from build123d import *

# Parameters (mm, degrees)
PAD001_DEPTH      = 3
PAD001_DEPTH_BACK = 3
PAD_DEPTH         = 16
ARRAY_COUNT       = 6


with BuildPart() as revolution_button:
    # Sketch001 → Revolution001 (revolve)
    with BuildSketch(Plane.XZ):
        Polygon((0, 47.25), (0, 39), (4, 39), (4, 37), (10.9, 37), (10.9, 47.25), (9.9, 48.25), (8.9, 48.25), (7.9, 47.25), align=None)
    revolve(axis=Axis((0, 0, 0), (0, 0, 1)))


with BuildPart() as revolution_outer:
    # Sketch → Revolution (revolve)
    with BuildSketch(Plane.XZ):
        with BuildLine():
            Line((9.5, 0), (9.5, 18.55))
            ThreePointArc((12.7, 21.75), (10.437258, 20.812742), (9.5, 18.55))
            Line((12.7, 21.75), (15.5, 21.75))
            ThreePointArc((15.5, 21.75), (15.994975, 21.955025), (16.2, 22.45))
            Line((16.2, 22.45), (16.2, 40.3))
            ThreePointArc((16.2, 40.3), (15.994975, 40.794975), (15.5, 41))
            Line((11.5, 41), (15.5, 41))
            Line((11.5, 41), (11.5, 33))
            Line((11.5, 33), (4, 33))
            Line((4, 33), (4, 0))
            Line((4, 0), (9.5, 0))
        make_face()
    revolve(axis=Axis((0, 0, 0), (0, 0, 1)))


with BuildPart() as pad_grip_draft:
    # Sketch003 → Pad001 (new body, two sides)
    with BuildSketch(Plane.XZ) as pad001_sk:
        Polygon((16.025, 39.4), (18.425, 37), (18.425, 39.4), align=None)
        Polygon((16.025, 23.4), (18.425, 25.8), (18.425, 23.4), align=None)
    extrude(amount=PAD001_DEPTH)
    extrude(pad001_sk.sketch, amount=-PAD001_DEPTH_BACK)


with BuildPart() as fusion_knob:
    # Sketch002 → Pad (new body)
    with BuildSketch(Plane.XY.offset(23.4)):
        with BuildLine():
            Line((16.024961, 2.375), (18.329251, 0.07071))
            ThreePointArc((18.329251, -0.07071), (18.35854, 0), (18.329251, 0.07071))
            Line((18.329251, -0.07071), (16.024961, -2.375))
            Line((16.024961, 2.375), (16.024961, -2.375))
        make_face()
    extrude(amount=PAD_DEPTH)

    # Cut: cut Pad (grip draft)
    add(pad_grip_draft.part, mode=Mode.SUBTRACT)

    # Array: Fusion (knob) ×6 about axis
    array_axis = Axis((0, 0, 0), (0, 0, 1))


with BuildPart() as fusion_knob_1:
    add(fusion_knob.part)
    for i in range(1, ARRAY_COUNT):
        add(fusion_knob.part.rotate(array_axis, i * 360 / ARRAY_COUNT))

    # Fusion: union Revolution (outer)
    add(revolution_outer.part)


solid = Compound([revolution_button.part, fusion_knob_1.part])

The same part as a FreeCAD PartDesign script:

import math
import FreeCAD as App
import Part
import Sketcher

V = App.Vector
Q = App.Units.Quantity

doc = App.newDocument("Part")
params = doc.addObject("Spreadsheet::Sheet", "Params")
for row, (alias, value) in enumerate([
    ("sketch1_width", "4 mm"),
    ("sketch1_width2", "1 mm"),
    ("sketch1_height", "2 mm"),
    ("sketch1_width3", "6.9 mm"),
    ("sketch1_width4", "7.9 mm"),
    ("revolution_angle", "360 deg"),
    ("sketch2_radius", "3.199999 mm"),
    ("sketch2_radius2", "0.699999 mm"),
    ("sketch2_width", "4 mm"),
    ("sketch2_height", "8 mm"),
    ("sketch2_height2", "33 mm"),
    ("revolution2_angle", "360 deg"),
    ("sketch3_width", "2.4 mm"),
    ("pad1_length", "3 mm"),
    ("pad1_length2", "3 mm"),
    ("sketch4_radius", "0.099999 mm"),
    ("sketch4_height", "4.75 mm"),
    ("pad2_length", "16 mm"),
], start=1):
    params.set(f"A{row}", alias)
    params.set(f"B{row}", "=" + value)
    params.setAlias(f"B{row}", alias)

body = doc.addObject("PartDesign::Body", "Body")

sketch1 = body.newObject("Sketcher::SketchObject", "Sketch")
sketch1.AttachmentSupport = (doc.getObject("XZ_Plane"), [""])
sketch1.MapMode = "FlatFace"
sketch1.addGeometry([
    Part.LineSegment(V(0, 47.2, 0), V(0, 39, 0)),
    Part.LineSegment(V(0, 39, 0), V(4, 39, 0)),
    Part.LineSegment(V(4, 39, 0), V(4, 37, 0)),
    Part.LineSegment(V(4, 37, 0), V(10.9, 37, 0)),
    Part.LineSegment(V(10.9, 37, 0), V(10.9, 47.2, 0)),
    Part.LineSegment(V(10.9, 47.2, 0), V(9.9, 48.2, 0)),
    Part.LineSegment(V(9.9, 48.2, 0), V(8.9, 48.2, 0)),
    Part.LineSegment(V(8.9, 48.2, 0), V(7.9, 47.2, 0)),
    Part.LineSegment(V(7.9, 47.2, 0), V(0, 47.2, 0)),
], False)
sketch1.addConstraint([
    Sketcher.Constraint("Coincident", 0, 2, 1, 1),
    Sketcher.Constraint("Coincident", 1, 2, 2, 1),
    Sketcher.Constraint("Coincident", 2, 2, 3, 1),
    Sketcher.Constraint("Coincident", 3, 2, 4, 1),
    Sketcher.Constraint("Coincident", 4, 2, 5, 1),
    Sketcher.Constraint("Coincident", 5, 2, 6, 1),
    Sketcher.Constraint("Coincident", 6, 2, 7, 1),
    Sketcher.Constraint("Coincident", 7, 2, 8, 1),
    Sketcher.Constraint("Coincident", 8, 2, 0, 1),
    Sketcher.Constraint("Vertical", 0),
    Sketcher.Constraint("Horizontal", 1),
    Sketcher.Constraint("Vertical", 2),
    Sketcher.Constraint("Horizontal", 3),
    Sketcher.Constraint("Vertical", 4),
    Sketcher.Constraint("Horizontal", 6),
    Sketcher.Constraint("Horizontal", 8),
    Sketcher.Constraint("PointOnObject", 0, 2, -2),
    Sketcher.Constraint("Perpendicular", 5, 7),
    Sketcher.Constraint("Horizontal", 4, 2, 7, 2),
    Sketcher.Constraint("Equal", 5, 7),
    Sketcher.Constraint("DistanceX", 1, 1, 1, 2, Q("4 mm")),
    Sketcher.Constraint("DistanceX", 6, 2, 6, 1, Q("1 mm")),
    Sketcher.Constraint("DistanceY", 2, 2, 2, 1, Q("2 mm")),
    Sketcher.Constraint("DistanceX", 3, 1, 3, 2, Q("6.9 mm")),
    Sketcher.Constraint("DistanceX", 8, 2, 8, 1, Q("7.9 mm")),
    Sketcher.Constraint("DistanceY", -1, 1, 0, 2, Q("39 mm")),
    Sketcher.Constraint("DistanceY", 0, 2, 0, 1, Q("8.25 mm")),
])
sketch1.setExpression("Constraints[20]", "Params.sketch1_width")
sketch1.setExpression("Constraints[21]", "Params.sketch1_width2")
sketch1.setExpression("Constraints[22]", "Params.sketch1_height")
sketch1.setExpression("Constraints[23]", "Params.sketch1_width3")
sketch1.setExpression("Constraints[24]", "Params.sketch1_width4")
revolution = body.newObject("PartDesign::Revolution", "Revolution")
revolution.Profile = sketch1
revolution.ReferenceAxis = (sketch1, ["V_Axis"])
revolution.setExpression("Angle", "Params.revolution_angle")
body2 = doc.addObject("PartDesign::Body", "Body001")

sketch2 = body2.newObject("Sketcher::SketchObject", "Sketch001")
sketch2.AttachmentSupport = (doc.getObject("XZ_Plane001"), [""])
sketch2.MapMode = "FlatFace"
sketch2.addGeometry([
    Part.LineSegment(V(9.5, 0, 0), V(9.5, 18.6, 0)),
    Part.ArcOfCircle(Part.Circle(V(12.7, 18.6, 0), V(0, 0, 1), 3.2), math.radians(90), math.radians(180)),
    Part.LineSegment(V(12.7, 21.8, 0), V(15.5, 21.8, 0)),
    Part.ArcOfCircle(Part.Circle(V(15.5, 22.4, 0), V(0, 0, 1), 0.7), math.radians(-90), math.radians(0)),
    Part.LineSegment(V(16.2, 22.4, 0), V(16.2, 40.3, 0)),
    Part.ArcOfCircle(Part.Circle(V(15.5, 40.3, 0), V(0, 0, 1), 0.7), math.radians(0), math.radians(90)),
    Part.LineSegment(V(15.5, 41, 0), V(11.5, 41, 0)),
    Part.LineSegment(V(11.5, 41, 0), V(11.5, 33, 0)),
    Part.LineSegment(V(11.5, 33, 0), V(4, 33, 0)),
    Part.LineSegment(V(4, 33, 0), V(4, 0, 0)),
    Part.LineSegment(V(4, 0, 0), V(9.5, 0, 0)),
], False)
sketch2.addConstraint([
    Sketcher.Constraint("Tangent", 0, 2, 1, 2),
    Sketcher.Constraint("Tangent", 1, 1, 2, 1),
    Sketcher.Constraint("Tangent", 2, 2, 3, 1),
    Sketcher.Constraint("Tangent", 3, 2, 4, 1),
    Sketcher.Constraint("Tangent", 4, 2, 5, 1),
    Sketcher.Constraint("Tangent", 5, 2, 6, 1),
    Sketcher.Constraint("Coincident", 6, 2, 7, 1),
    Sketcher.Constraint("Coincident", 7, 2, 8, 1),
    Sketcher.Constraint("Coincident", 8, 2, 9, 1),
    Sketcher.Constraint("Coincident", 9, 2, 10, 1),
    Sketcher.Constraint("Coincident", 10, 2, 0, 1),
    Sketcher.Constraint("Vertical", 0),
    Sketcher.Constraint("Horizontal", 2),
    Sketcher.Constraint("Vertical", 4),
    Sketcher.Constraint("Horizontal", 6),
    Sketcher.Constraint("Vertical", 7),
    Sketcher.Constraint("Horizontal", 8),
    Sketcher.Constraint("Vertical", 9),
    Sketcher.Constraint("Horizontal", 10),
    Sketcher.Constraint("Equal", 3, 5),
    Sketcher.Constraint("PointOnObject", 9, 2, -1),
    Sketcher.Constraint("Radius", 1, Q("3.199999 mm")),
    Sketcher.Constraint("Radius", 3, Q("0.699999 mm")),
    Sketcher.Constraint("DistanceX", 6, 2, 6, 1, Q("4 mm")),
    Sketcher.Constraint("DistanceY", 7, 2, 7, 1, Q("8 mm")),
    Sketcher.Constraint("DistanceY", 9, 2, 9, 1, Q("33 mm")),
    Sketcher.Constraint("DistanceX", 2, 1, 2, 2, Q("2.8 mm")),
    Sketcher.Constraint("DistanceX", 8, 2, 8, 1, Q("7.5 mm")),
    Sketcher.Constraint("DistanceX", -1, 1, 8, 2, Q("4 mm")),
    Sketcher.Constraint("DistanceY", 0, 1, 0, 2, Q("18.55 mm")),
])
sketch2.setExpression("Constraints[21]", "Params.sketch2_radius")
sketch2.setExpression("Constraints[22]", "Params.sketch2_radius2")
sketch2.setExpression("Constraints[23]", "Params.sketch2_width")
sketch2.setExpression("Constraints[24]", "Params.sketch2_height")
sketch2.setExpression("Constraints[25]", "Params.sketch2_height2")
revolution2 = body2.newObject("PartDesign::Revolution", "Revolution001")
revolution2.Profile = sketch2
revolution2.ReferenceAxis = (sketch2, ["V_Axis"])
revolution2.setExpression("Angle", "Params.revolution2_angle")
body3 = doc.addObject("PartDesign::Body", "Body002")
body3.AllowCompound = True

sketch3 = body3.newObject("Sketcher::SketchObject", "Sketch002")
sketch3.AttachmentSupport = (doc.getObject("XZ_Plane002"), [""])
sketch3.MapMode = "FlatFace"
sketch3.addGeometry([
    Part.LineSegment(V(16, 39.4, 0), V(18.4, 37, 0)),
    Part.LineSegment(V(18.4, 37, 0), V(18.4, 39.4, 0)),
    Part.LineSegment(V(18.4, 39.4, 0), V(16, 39.4, 0)),
    Part.LineSegment(V(18.4, 25.8, 0), V(16, 23.4, 0)),
    Part.LineSegment(V(16, 23.4, 0), V(18.4, 23.4, 0)),
    Part.LineSegment(V(18.4, 23.4, 0), V(18.4, 25.8, 0)),
], False)
sketch3.addConstraint([
    Sketcher.Constraint("Coincident", 0, 2, 1, 1),
    Sketcher.Constraint("Coincident", 1, 2, 2, 1),
    Sketcher.Constraint("Coincident", 2, 2, 0, 1),
    Sketcher.Constraint("Coincident", 3, 2, 4, 1),
    Sketcher.Constraint("Coincident", 4, 2, 5, 1),
    Sketcher.Constraint("Coincident", 5, 2, 3, 1),
    Sketcher.Constraint("Vertical", 1),
    Sketcher.Constraint("Horizontal", 2),
    Sketcher.Constraint("Horizontal", 4),
    Sketcher.Constraint("Vertical", 5),
    Sketcher.Constraint("Perpendicular", 0, 3),
    Sketcher.Constraint("Vertical", 2, 2, 3, 2),
    Sketcher.Constraint("Vertical", 1, 2, 4, 2),
    Sketcher.Constraint("Equal", 4, 1),
    Sketcher.Constraint("DistanceX", 2, 2, 2, 1, Q("2.4 mm")),
    Sketcher.Constraint("DistanceY", -1, 1, 0, 2, Q("37 mm")),
    Sketcher.Constraint("DistanceY", 3, 2, 2, 2, Q("16 mm")),
    Sketcher.Constraint("DistanceX", -1, 1, 0, 2, Q("18.425 mm")),
])
sketch3.setExpression("Constraints[14]", "Params.sketch3_width")
pad1 = body3.newObject("PartDesign::Pad", "Pad")
pad1.Profile = sketch3
pad1.Type = "TwoLengths"
pad1.setExpression("Length", "Params.pad1_length")
pad1.setExpression("Length2", "Params.pad1_length2")
body4 = doc.addObject("PartDesign::Body", "Body003")

sketch4 = body4.newObject("Sketcher::SketchObject", "Sketch003")
sketch4.AttachmentSupport = (doc.getObject("XY_Plane003"), [""])
sketch4.MapMode = "FlatFace"
sketch4.AttachmentOffset = App.Placement(V(0, 0, 23.4), App.Rotation())
sketch4.addGeometry([
    Part.LineSegment(V(18.33, 0.07, 0), V(16.02, 2.38, 0)),
    Part.LineSegment(V(16.02, 2.38, 0), V(16.02, -2.38, 0)),
    Part.LineSegment(V(16.02, -2.38, 0), V(18.33, -0.07, 0)),
    Part.ArcOfCircle(Part.Circle(V(18.26, 0, 0), V(0, 0, 1), 0.1), math.radians(-45), math.radians(45)),
], False)
sketch4.addConstraint([
    Sketcher.Constraint("Coincident", 0, 2, 1, 1),
    Sketcher.Constraint("Coincident", 1, 2, 2, 1),
    Sketcher.Constraint("Tangent", 2, 2, 3, 1),
    Sketcher.Constraint("Tangent", 3, 2, 0, 1),
    Sketcher.Constraint("Vertical", 1),
    Sketcher.Constraint("Symmetric", 2, 2, 3, 2, -1),
    Sketcher.Constraint("Perpendicular", 0, 2),
    Sketcher.Constraint("Radius", 3, Q("0.099999 mm")),
    Sketcher.Constraint("DistanceY", 1, 2, 1, 1, Q("4.75 mm")),
    Sketcher.Constraint("DistanceX", -1, 1, 3, 3, Q("18.258541 mm")),
])
sketch4.setExpression("Constraints[7]", "Params.sketch4_radius")
sketch4.setExpression("Constraints[8]", "Params.sketch4_height")
pad2 = body4.newObject("PartDesign::Pad", "Pad001")
pad2.Profile = sketch4
pad2.setExpression("Length", "Params.pad2_length")
doc.recompute()

boolean = body4.newObject("PartDesign::Boolean", "Boolean")
boolean.Type = "Cut"
boolean.addObjects([body3])
body5 = doc.addObject("PartDesign::Body", "Body004")
body5.AllowCompound = True
doc.recompute()

body5.BaseFeature = body4
doc.recompute()

body6 = doc.addObject("PartDesign::Body", "Body005")
body6.BaseFeature = body4
body6.Placement = App.Placement(V(0, 0, 0), App.Rotation(V(0, 0, 1), 60))
boolean2 = body5.newObject("PartDesign::Boolean", "Boolean001")
boolean2.Type = "Fuse"
boolean2.addObjects([body6])
doc.recompute()

body7 = doc.addObject("PartDesign::Body", "Body006")
body7.BaseFeature = body4
body7.Placement = App.Placement(V(0, 0, 0), App.Rotation(V(0, 0, 1), 120))
boolean3 = body5.newObject("PartDesign::Boolean", "Boolean002")
boolean3.Type = "Fuse"
boolean3.addObjects([body7])
doc.recompute()

body8 = doc.addObject("PartDesign::Body", "Body007")
body8.BaseFeature = body4
body8.Placement = App.Placement(V(0, 0, 0), App.Rotation(V(0, 0, 1), 180))
boolean4 = body5.newObject("PartDesign::Boolean", "Boolean003")
boolean4.Type = "Fuse"
boolean4.addObjects([body8])
doc.recompute()

body9 = doc.addObject("PartDesign::Body", "Body008")
body9.BaseFeature = body4
body9.Placement = App.Placement(V(0, 0, 0), App.Rotation(V(0, 0, 1), 240))
boolean5 = body5.newObject("PartDesign::Boolean", "Boolean004")
boolean5.Type = "Fuse"
boolean5.addObjects([body9])
doc.recompute()

body4.Placement = App.Placement(V(0, 0, 0), App.Rotation(V(0, 0, 1), 300))
boolean6 = body5.newObject("PartDesign::Boolean", "Boolean005")
boolean6.Type = "Fuse"
boolean6.addObjects([body4])
doc.recompute()

boolean7 = body5.newObject("PartDesign::Boolean", "Boolean006")
boolean7.Type = "Fuse"
boolean7.addObjects([body2])

doc.recompute()
